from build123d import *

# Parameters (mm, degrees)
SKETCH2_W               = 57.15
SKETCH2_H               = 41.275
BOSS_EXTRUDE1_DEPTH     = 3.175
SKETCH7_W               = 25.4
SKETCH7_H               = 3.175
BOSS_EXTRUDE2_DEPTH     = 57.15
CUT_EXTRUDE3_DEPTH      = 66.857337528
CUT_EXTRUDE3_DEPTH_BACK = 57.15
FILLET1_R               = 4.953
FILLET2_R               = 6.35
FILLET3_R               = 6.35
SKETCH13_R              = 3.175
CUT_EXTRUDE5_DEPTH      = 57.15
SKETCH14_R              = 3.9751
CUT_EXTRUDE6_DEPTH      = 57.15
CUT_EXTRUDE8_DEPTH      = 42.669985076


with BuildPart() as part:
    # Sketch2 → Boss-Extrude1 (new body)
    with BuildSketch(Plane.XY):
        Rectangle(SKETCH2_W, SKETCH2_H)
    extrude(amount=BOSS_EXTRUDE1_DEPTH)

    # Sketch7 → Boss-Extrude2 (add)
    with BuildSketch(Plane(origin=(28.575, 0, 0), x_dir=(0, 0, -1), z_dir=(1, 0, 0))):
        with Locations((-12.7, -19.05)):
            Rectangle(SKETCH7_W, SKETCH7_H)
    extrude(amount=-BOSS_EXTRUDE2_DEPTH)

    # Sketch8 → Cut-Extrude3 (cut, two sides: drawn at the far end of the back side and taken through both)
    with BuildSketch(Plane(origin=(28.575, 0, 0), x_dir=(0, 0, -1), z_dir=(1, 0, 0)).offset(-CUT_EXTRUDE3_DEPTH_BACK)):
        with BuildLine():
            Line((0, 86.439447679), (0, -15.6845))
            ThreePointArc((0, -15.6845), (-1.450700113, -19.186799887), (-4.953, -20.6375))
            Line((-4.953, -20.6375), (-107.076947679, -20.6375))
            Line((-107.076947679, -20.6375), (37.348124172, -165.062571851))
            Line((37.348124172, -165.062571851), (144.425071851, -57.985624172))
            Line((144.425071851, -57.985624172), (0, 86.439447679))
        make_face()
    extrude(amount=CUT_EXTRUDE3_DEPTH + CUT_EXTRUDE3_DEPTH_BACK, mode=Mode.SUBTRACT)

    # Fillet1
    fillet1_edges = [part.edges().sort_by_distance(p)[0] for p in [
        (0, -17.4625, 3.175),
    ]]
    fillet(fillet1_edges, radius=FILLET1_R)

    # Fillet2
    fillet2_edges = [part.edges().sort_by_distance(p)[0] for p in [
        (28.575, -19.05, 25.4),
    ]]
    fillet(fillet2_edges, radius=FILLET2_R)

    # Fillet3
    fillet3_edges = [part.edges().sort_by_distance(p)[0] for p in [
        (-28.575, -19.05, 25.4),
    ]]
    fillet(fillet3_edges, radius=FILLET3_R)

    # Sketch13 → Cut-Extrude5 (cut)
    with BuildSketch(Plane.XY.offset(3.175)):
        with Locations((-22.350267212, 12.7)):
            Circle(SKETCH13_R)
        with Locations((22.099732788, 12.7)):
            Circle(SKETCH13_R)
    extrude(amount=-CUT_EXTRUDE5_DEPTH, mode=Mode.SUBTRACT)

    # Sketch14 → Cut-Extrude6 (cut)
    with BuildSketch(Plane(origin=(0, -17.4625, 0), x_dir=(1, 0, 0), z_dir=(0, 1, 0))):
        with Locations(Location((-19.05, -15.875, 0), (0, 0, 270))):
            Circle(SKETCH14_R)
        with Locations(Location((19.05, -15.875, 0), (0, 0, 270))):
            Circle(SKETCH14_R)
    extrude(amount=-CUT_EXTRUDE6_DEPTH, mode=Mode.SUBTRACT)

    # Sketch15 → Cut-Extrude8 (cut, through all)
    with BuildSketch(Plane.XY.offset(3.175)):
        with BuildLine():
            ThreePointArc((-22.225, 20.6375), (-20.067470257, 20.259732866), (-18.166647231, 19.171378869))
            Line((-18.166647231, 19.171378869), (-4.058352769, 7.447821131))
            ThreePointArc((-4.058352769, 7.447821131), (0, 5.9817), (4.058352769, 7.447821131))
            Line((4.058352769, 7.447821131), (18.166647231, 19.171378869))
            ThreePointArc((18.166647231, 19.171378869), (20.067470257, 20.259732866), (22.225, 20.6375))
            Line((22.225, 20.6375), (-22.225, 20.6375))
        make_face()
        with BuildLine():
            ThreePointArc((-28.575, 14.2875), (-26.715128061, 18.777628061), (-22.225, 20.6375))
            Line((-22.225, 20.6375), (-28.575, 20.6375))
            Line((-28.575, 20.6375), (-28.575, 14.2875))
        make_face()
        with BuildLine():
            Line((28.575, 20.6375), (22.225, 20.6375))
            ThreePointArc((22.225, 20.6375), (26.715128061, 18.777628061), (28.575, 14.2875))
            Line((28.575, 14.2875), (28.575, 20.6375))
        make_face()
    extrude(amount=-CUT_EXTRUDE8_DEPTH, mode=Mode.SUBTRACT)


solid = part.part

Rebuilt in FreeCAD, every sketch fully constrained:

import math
import FreeCAD as App
import Part
import Sketcher
from FreeCAD import Vector
Q = App.Units.Quantity


def edges_at(feature, points):
    """Names of the edges that pass closest to the given points."""
    edges = feature.Shape.Edges
    near = lambda p: min(range(len(edges)), key=lambda i: edges[i].distToShape(Part.Vertex(*p))[0])
    return sorted({f"Edge{near(p) + 1}" for p in points})


def add_polygon(sketch, points):
    """Adds a closed chain of lines whose ends are joined by coincident constraints."""
    first, n = sketch.GeometryCount, len(points)
    for a, b in zip(points, points[1:] + points[:1]):
        sketch.addGeometry(Part.LineSegment(App.Vector(*a, 0), App.Vector(*b, 0)), False)
    for i in range(n):
        sketch.addConstraint(Sketcher.Constraint("Coincident", first + i, 2, first + (i + 1) % n, 1))

doc = App.newDocument("Part")
body = doc.addObject("PartDesign::Body", "Body")

sketch1 = body.newObject("Sketcher::SketchObject", "Sketch")
sketch1.AttachmentSupport = (doc.getObject("XY_Plane"), [""])
sketch1.MapMode = "FlatFace"
add_polygon(sketch1, [(-28.575, 20.6375), (-28.575, -20.6375), (28.575, -20.6375), (28.575, 20.6375)])
sketch1.addConstraint(Sketcher.Constraint("Vertical", 0))
sketch1.addConstraint(Sketcher.Constraint("Horizontal", 1))
sketch1.addConstraint(Sketcher.Constraint("Vertical", 2))
sketch1.addConstraint(Sketcher.Constraint("Horizontal", 3))
sketch1.addConstraint(Sketcher.Constraint("Symmetric", 0, 2, 2, 2, -1, 1))
sketch1.addConstraint(Sketcher.Constraint("DistanceX", 1, 1, 1, 2, Q("2.25 in")))
sketch1.addConstraint(Sketcher.Constraint("DistanceY", 0, 2, 0, 1, Q("1.625 in")))
pad1 = body.newObject("PartDesign::Pad", "Pad")
pad1.Profile = sketch1
pad1.Length = Q("0.125 in")

sketch2 = body.newObject("Sketcher::SketchObject", "Sketch001")
sketch2.AttachmentSupport = (doc.getObject("YZ_Plane"), [""])
sketch2.MapMode = "FlatFace"
sketch2.AttachmentOffset = App.Placement(Vector(0, 0, 1.125 * 25.4), App.Rotation())
add_polygon(sketch2, [(-17.4625, 25.4), (-20.6375, 25.4), (-20.6375, 0), (-17.4625, 0)])
sketch2.addConstraint(Sketcher.Constraint("Horizontal", 0))
sketch2.addConstraint(Sketcher.Constraint("Vertical", 1))
sketch2.addConstraint(Sketcher.Constraint("Horizontal", 2))
sketch2.addConstraint(Sketcher.Constraint("Vertical", 3))
sketch2.addConstraint(Sketcher.Constraint("PointOnObject", 1, 2, -1))
sketch2.addConstraint(Sketcher.Constraint("DistanceY", 1, 2, 1, 1, Q("1 in")))
sketch2.addConstraint(Sketcher.Constraint("DistanceX", 0, 2, 0, 1, Q("0.125 in")))
sketch2.addConstraint(Sketcher.Constraint("DistanceX", 0, 2, -1, 1, Q("0.8125 in")))
pad2 = body.newObject("PartDesign::Pad", "Pad001")
pad2.Profile = sketch2
pad2.Length = Q("2.25 in")
pad2.Reversed = True

sketch3 = body.newObject("Sketcher::SketchObject", "Sketch002")
sketch3.AttachmentSupport = (doc.getObject("YZ_Plane"), [""])
sketch3.MapMode = "FlatFace"
sketch3.AttachmentOffset = App.Placement(Vector(0, 0, 1.125 * 25.4), App.Rotation())
sketch3.addGeometry(Part.LineSegment(Vector(86.439448, 0, 0), Vector(-15.6845, 0, 0)), False)
sketch3.addGeometry(Part.ArcOfCircle(Part.Circle(Vector(-15.6845, 4.953, 0), Vector(0, 0, 1), 4.953), math.radians(-180), math.radians(-90)), False)
sketch3.addGeometry(Part.LineSegment(Vector(-20.6375, 4.953, 0), Vector(-20.6375, 107.076948, 0)), False)
sketch3.addGeometry(Part.LineSegment(Vector(-20.6375, 107.076948, 0), Vector(-165.062572, -37.348124, 0)), False)
sketch3.addGeometry(Part.LineSegment(Vector(-165.062572, -37.348124, 0), Vector(-57.985624, -144.425072, 0)), False)
sketch3.addGeometry(Part.LineSegment(Vector(-57.985624, -144.425072, 0), Vector(86.439448, 0, 0)), False)
sketch3.addConstraint(Sketcher.Constraint("Tangent", 0, 2, 1, 2))
sketch3.addConstraint(Sketcher.Constraint("Tangent", 1, 1, 2, 1))
sketch3.addConstraint(Sketcher.Constraint("Coincident", 2, 2, 3, 1))
sketch3.addConstraint(Sketcher.Constraint("Coincident", 3, 2, 4, 1))
sketch3.addConstraint(Sketcher.Constraint("Coincident", 4, 2, 5, 1))
sketch3.addConstraint(Sketcher.Constraint("Coincident", 5, 2, 0, 1))
sketch3.addConstraint(Sketcher.Constraint("Horizontal", 0))
sketch3.addConstraint(Sketcher.Constraint("Vertical", 2))
sketch3.addConstraint(Sketcher.Constraint("PointOnObject", 0, 2, -1))
sketch3.addConstraint(Sketcher.Constraint("Perpendicular", 3, 4))
sketch3.addConstraint(Sketcher.Constraint("Perpendicular", 4, 5))
sketch3.addConstraint(Sketcher.Constraint("Equal", 0, 2))
sketch3.addConstraint(Sketcher.Constraint("Equal", 3, 5))
sketch3.addConstraint(Sketcher.Constraint("Radius", 1, Q("0.195 in")))
sketch3.addConstraint(Sketcher.Constraint("DistanceX", 1, 1, -1, 1, Q("0.8125 in")))
sketch3.addConstraint(Sketcher.Constraint("Distance", 4, 151.429672))
sketch3.addConstraint(Sketcher.Constraint("DistanceX", 3, 2, -1, 1, 165.062572))
pocket1 = body.newObject("PartDesign::Pocket", "Pocket")
pocket1.Profile = sketch3
pocket1.Type = "ThroughAll"
pocket1.Midplane = True
doc.recompute()

fillet = body.newObject("PartDesign::Fillet", "Fillet")
fillet.Base = (pocket1, edges_at(pocket1, [(0, -17.462, 3.175)]))
fillet.Radius = Q("0.195 in")
doc.recompute()

fillet2 = body.newObject("PartDesign::Fillet", "Fillet001")
fillet2.Base = (fillet, edges_at(fillet, [(28.575, -19.05, 25.4)]))
fillet2.Radius = Q("0.25 in")
doc.recompute()

fillet3 = body.newObject("PartDesign::Fillet", "Fillet002")
fillet3.Base = (fillet2, edges_at(fillet2, [(-28.575, -19.05, 25.4)]))
fillet3.Radius = Q("0.25 in")

sketch4 = body.newObject("Sketcher::SketchObject", "Sketch003")
sketch4.AttachmentSupport = (doc.getObject("XY_Plane"), [""])
sketch4.MapMode = "FlatFace"
sketch4.AttachmentOffset = App.Placement(Vector(0, 0, 0.125 * 25.4), App.Rotation())
sketch4.addGeometry(Part.Circle(Vector(-22.350267, 12.7, 0), Vector(0, 0, 1), 3.175), False)
sketch4.addGeometry(Part.Circle(Vector(22.099733, 12.7, 0), Vector(0, 0, 1), 3.175), False)
sketch4.addConstraint(Sketcher.Constraint("Equal", 0, 1))
sketch4.addConstraint(Sketcher.Constraint("Horizontal", 0, 3, 1, 3))
sketch4.addConstraint(Sketcher.Constraint("Diameter", 0, Q("0.25 in")))
sketch4.addConstraint(Sketcher.Constraint("DistanceY", -1, 1, 0, 3, Q("0.5 in")))
sketch4.addConstraint(Sketcher.Constraint("DistanceX", 0, 3, 1, 3, Q("1.75 in")))
sketch4.addConstraint(Sketcher.Constraint("DistanceX", 0, 3, -1, 1, 22.350267))
pocket2 = body.newObject("PartDesign::Pocket", "Pocket001")
pocket2.Profile = sketch4
pocket2.Length = Q("2.25 in")

sketch5 = body.newObject("Sketcher::SketchObject", "Sketch004")
sketch5.AttachmentSupport = (doc.getObject("XZ_Plane"), [""])
sketch5.MapMode = "FlatFace"
sketch5.AttachmentOffset = App.Placement(Vector(0, 0, 0.6875 * 25.4), App.Rotation())
sketch5.addGeometry(Part.Circle(Vector(-19.05, 15.875, 0), Vector(0, 0, 1), 3.9751), False)
sketch5.addGeometry(Part.Circle(Vector(19.05, 15.875, 0), Vector(0, 0, 1), 3.9751), False)
sketch5.addConstraint(Sketcher.Constraint("Equal", 0, 1))
sketch5.addConstraint(Sketcher.Constraint("Symmetric", 0, 3, 1, 3, -2))
sketch5.addConstraint(Sketcher.Constraint("Diameter", 0, Q("0.313 in")))
sketch5.addConstraint(Sketcher.Constraint("DistanceX", 0, 3, 1, 3, Q("1.5 in")))
sketch5.addConstraint(Sketcher.Constraint("DistanceY", -1, 1, 0, 3, Q("0.625 in")))
pocket3 = body.newObject("PartDesign::Pocket", "Pocket002")
pocket3.Profile = sketch5
pocket3.Length = Q("2.25 in")
pocket3.Reversed = True

sketch6 = body.newObject("Sketcher::SketchObject", "Sketch005")
sketch6.AttachmentSupport = (doc.getObject("XY_Plane"), [""])
sketch6.MapMode = "FlatFace"
sketch6.AttachmentOffset = App.Placement(Vector(0, 0, 0.125 * 25.4), App.Rotation())
sketch6.addGeometry(Part.ArcOfCircle(Part.Circle(Vector(-22.225, 14.2875, 0), Vector(0, 0, 1), 6.35), math.radians(50.274464), math.radians(90)), False)
sketch6.addGeometry(Part.LineSegment(Vector(-18.166647, 19.171379, 0), Vector(-4.058353, 7.447821, 0)), False)
sketch6.addGeometry(Part.ArcOfCircle(Part.Circle(Vector(0, 12.3317, 0), Vector(0, 0, 1), 6.35), math.radians(-129.725536), math.radians(-50.274464)), False)
sketch6.addGeometry(Part.LineSegment(Vector(4.058353, 7.447821, 0), Vector(18.166647, 19.171379, 0)), False)
sketch6.addGeometry(Part.ArcOfCircle(Part.Circle(Vector(22.225, 14.2875, 0), Vector(0, 0, 1), 6.35), math.radians(90), math.radians(129.725536)), False)
sketch6.addGeometry(Part.LineSegment(Vector(22.225, 20.6375, 0), Vector(-22.225, 20.6375, 0)), False)
sketch6.addGeometry(Part.ArcOfCircle(Part.Circle(Vector(-22.225, 14.2875, 0), Vector(0, 0, 1), 6.35), math.radians(90), math.radians(180)), False)
sketch6.addGeometry(Part.LineSegment(Vector(-22.225, 20.6375, 0), Vector(-28.575, 20.6375, 0)), False)
sketch6.addGeometry(Part.LineSegment(Vector(-28.575, 20.6375, 0), Vector(-28.575, 14.2875, 0)), False)
sketch6.addGeometry(Part.LineSegment(Vector(28.575, 20.6375, 0), Vector(22.225, 20.6375, 0)), False)
sketch6.addGeometry(Part.ArcOfCircle(Part.Circle(Vector(22.225, 14.2875, 0), Vector(0, 0, 1), 6.35), math.radians(0), math.radians(90)), False)
sketch6.addGeometry(Part.LineSegment(Vector(28.575, 14.2875, 0), Vector(28.575, 20.6375, 0)), False)
sketch6.addConstraint(Sketcher.Constraint("Tangent", 0, 1, 1, 1))
sketch6.addConstraint(Sketcher.Constraint("Tangent", 1, 2, 2, 1))
sketch6.addConstraint(Sketcher.Constraint("Tangent", 2, 2, 3, 1))
sketch6.addConstraint(Sketcher.Constraint("Tangent", 3, 2, 4, 2))
sketch6.addConstraint(Sketcher.Constraint("Tangent", 4, 1, 5, 1))
sketch6.addConstraint(Sketcher.Constraint("Tangent", 5, 2, 0, 2))
sketch6.addConstraint(Sketcher.Constraint("Tangent", 6, 1, 7, 1))
sketch6.addConstraint(Sketcher.Constraint("Coincident", 7, 2, 8, 1))
sketch6.addConstraint(Sketcher.Constraint("Tangent", 8, 2, 6, 2))
sketch6.addConstraint(Sketcher.Constraint("Tangent", 9, 2, 10, 2))
sketch6.addConstraint(Sketcher.Constraint("Tangent", 10, 1, 11, 1))
sketch6.addConstraint(Sketcher.Constraint("Coincident", 11, 2, 9, 1))
sketch6.addConstraint(Sketcher.Constraint("Horizontal", 5))
sketch6.addConstraint(Sketcher.Constraint("Horizontal", 7))
sketch6.addConstraint(Sketcher.Constraint("Vertical", 8))
sketch6.addConstraint(Sketcher.Constraint("Horizontal", 9))
sketch6.addConstraint(Sketcher.Constraint("Vertical", 11))
sketch6.addConstraint(Sketcher.Constraint("Coincident", 6, 3, 0, 3))
sketch6.addConstraint(Sketcher.Constraint("Coincident", 10, 3, 4, 3))
sketch6.addConstraint(Sketcher.Constraint("Equal", 0, 2))
sketch6.addConstraint(Sketcher.Constraint("Equal", 2, 4))
sketch6.addConstraint(Sketcher.Constraint("Equal", 4, 6))
sketch6.addConstraint(Sketcher.Constraint("Equal", 6, 10))
sketch6.addConstraint(Sketcher.Constraint("Symmetric", 1, 2, 2, 2, -2))
sketch6.addConstraint(Sketcher.Constraint("Radius", 0, Q("0.25 in")))
sketch6.addConstraint(Sketcher.Constraint("DistanceX", 5, 2, 5, 1, Q("1.75 in")))
sketch6.addConstraint(Sketcher.Constraint("DistanceY", -1, 1, 0, 3, Q("0.5625 in")))
sketch6.addConstraint(Sketcher.Constraint("DistanceY", 2, 3, 0, 3, Q("0.077 in")))
pocket4 = body.newObject("PartDesign::Pocket", "Pocket003")
pocket4.Profile = sketch6
pocket4.Type = "ThroughAll"

doc.recompute()
